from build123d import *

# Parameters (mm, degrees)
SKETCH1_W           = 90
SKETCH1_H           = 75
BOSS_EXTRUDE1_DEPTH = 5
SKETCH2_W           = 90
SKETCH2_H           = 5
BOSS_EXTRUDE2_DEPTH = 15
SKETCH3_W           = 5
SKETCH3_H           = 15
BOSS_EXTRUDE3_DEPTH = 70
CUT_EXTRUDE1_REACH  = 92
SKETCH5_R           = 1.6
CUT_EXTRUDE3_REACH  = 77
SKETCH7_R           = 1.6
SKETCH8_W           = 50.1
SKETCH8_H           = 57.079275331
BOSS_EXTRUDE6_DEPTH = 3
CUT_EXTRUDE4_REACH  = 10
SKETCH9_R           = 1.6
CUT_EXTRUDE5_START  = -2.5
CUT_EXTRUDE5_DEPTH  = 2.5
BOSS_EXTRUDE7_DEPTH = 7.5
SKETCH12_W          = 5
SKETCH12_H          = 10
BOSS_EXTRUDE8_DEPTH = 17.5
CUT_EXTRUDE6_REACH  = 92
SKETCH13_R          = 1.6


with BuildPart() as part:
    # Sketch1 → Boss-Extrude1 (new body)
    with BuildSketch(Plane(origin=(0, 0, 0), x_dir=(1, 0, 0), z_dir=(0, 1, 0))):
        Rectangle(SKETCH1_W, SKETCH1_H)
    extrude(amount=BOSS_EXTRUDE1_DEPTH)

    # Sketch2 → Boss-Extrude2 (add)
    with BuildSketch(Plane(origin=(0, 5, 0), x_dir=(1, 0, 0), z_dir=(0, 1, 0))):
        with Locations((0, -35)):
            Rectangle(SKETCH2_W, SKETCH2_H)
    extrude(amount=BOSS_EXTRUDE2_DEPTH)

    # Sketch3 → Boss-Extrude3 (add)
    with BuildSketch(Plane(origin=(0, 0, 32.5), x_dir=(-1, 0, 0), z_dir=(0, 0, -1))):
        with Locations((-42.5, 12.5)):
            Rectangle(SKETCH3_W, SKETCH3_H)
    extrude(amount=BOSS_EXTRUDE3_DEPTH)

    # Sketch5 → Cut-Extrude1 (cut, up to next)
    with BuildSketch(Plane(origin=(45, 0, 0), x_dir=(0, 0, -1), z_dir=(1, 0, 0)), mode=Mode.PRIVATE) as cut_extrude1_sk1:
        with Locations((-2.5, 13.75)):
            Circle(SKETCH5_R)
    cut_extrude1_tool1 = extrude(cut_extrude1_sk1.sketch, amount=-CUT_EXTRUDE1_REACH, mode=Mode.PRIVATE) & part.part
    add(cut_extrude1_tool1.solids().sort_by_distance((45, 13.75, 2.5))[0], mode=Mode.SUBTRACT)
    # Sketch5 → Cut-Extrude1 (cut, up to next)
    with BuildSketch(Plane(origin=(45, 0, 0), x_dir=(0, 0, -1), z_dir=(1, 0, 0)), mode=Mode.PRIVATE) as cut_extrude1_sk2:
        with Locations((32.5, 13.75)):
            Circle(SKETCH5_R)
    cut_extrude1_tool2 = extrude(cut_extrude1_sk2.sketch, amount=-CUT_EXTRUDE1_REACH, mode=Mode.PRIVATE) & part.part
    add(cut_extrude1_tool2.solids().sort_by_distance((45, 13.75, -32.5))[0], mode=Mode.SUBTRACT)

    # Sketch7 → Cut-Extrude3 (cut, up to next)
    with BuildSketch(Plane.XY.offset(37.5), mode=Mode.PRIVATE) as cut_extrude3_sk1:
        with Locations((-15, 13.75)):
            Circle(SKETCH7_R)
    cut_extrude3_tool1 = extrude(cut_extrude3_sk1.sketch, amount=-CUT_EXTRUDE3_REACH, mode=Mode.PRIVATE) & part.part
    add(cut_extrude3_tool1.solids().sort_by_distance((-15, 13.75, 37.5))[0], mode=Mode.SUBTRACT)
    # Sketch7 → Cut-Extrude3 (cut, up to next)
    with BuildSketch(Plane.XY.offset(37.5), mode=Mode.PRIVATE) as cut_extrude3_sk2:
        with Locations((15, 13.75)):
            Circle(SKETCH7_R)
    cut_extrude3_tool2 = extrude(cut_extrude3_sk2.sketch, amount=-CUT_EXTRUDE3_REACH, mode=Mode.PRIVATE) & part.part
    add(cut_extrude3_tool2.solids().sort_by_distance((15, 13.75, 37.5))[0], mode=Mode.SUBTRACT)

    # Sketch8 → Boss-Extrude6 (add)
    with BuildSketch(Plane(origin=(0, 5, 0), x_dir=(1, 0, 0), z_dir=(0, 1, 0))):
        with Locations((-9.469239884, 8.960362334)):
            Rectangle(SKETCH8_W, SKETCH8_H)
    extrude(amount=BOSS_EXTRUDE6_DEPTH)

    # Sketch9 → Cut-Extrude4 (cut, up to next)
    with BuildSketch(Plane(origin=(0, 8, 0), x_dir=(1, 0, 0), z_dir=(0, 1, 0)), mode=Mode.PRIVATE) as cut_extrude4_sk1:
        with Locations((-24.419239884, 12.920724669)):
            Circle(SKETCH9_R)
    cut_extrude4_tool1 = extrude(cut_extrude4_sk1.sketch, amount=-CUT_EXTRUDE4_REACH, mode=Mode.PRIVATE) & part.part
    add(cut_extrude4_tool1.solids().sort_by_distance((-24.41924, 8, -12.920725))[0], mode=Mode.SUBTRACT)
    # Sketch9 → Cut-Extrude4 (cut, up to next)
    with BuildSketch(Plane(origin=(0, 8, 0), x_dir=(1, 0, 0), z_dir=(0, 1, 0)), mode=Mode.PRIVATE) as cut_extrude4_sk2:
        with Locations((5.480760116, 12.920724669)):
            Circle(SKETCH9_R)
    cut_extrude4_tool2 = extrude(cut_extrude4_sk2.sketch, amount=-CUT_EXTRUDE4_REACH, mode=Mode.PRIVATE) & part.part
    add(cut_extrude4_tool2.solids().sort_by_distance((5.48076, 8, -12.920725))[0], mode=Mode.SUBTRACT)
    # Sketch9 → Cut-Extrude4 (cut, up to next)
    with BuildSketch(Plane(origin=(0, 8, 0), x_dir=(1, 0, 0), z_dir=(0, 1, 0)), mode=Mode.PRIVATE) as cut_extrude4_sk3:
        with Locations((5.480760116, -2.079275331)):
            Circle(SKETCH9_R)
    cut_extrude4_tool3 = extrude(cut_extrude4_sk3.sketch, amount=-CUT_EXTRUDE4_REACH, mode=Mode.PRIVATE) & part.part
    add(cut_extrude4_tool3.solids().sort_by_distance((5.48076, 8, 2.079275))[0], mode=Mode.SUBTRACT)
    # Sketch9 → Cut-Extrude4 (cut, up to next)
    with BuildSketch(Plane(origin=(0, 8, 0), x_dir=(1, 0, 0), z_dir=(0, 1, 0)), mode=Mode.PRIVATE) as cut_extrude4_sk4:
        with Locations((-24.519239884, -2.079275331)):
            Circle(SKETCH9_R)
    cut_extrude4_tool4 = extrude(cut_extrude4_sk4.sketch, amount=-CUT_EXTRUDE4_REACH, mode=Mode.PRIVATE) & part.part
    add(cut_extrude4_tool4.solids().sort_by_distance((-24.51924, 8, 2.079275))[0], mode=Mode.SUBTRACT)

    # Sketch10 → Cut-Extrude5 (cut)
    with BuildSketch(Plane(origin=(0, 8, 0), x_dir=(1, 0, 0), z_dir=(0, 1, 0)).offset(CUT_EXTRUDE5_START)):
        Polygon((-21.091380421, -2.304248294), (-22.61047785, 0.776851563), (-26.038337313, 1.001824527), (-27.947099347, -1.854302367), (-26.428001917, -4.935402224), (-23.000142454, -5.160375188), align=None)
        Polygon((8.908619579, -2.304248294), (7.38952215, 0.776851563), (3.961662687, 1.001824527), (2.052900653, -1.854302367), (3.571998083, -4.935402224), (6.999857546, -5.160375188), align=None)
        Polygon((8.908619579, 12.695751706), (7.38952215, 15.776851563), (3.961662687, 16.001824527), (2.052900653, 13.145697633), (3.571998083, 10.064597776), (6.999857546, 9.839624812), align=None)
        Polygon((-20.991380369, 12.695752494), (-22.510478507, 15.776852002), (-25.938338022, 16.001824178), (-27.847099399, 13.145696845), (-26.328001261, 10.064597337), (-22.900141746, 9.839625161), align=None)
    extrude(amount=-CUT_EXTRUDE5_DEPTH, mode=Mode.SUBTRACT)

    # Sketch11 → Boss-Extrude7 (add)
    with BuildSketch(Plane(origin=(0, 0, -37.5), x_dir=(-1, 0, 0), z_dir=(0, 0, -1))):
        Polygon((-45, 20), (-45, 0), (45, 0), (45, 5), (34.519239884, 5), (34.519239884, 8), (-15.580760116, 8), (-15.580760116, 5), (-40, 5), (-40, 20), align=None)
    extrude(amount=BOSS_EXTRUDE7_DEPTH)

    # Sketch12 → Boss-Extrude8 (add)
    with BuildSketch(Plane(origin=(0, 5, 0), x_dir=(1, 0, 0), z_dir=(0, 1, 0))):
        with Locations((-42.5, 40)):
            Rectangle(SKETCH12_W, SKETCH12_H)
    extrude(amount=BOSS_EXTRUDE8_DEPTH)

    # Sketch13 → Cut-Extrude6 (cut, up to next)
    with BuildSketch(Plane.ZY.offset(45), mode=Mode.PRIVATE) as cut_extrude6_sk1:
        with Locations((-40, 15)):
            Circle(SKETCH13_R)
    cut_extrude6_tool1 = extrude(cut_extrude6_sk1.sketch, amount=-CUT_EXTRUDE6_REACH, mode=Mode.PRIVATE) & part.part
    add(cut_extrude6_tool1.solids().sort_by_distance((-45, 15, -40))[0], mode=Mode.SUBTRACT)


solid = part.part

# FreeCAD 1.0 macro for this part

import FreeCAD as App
import Part
import Sketcher

V = App.Vector


def add_polygon(sketch, points):
    """Adds a closed chain of lines whose ends are joined by coincident constraints."""
    first, n = sketch.GeometryCount, len(points)
    for a, b in zip(points, points[1:] + points[:1]):
        sketch.addGeometry(Part.LineSegment(App.Vector(*a, 0), App.Vector(*b, 0)), False)
    for i in range(n):
        sketch.addConstraint(Sketcher.Constraint("Coincident", first + i, 2, first + (i + 1) % n, 1))

doc = App.newDocument("Part")
body = doc.addObject("PartDesign::Body", "Body")

sketch1 = doc.addObject("Sketcher::SketchObject", "Sketch")
body.addObject(sketch1)
sketch1.AttachmentSupport = (doc.XZ_Plane, [""])
sketch1.MapMode = "FlatFace"
add_polygon(sketch1, [(-45, -38), (-45, 38), (45, 38), (45, -38)])
sketch1.addConstraint(Sketcher.Constraint("Vertical", 0))
sketch1.addConstraint(Sketcher.Constraint("Horizontal", 1))
sketch1.addConstraint(Sketcher.Constraint("Vertical", 2))
sketch1.addConstraint(Sketcher.Constraint("Horizontal", 3))
sketch1.addConstraint(Sketcher.Constraint("Symmetric", 0, 2, 2, 2, -1, 1))
sketch1.addConstraint(Sketcher.Constraint("DistanceX", 1, 1, 1, 2, 90.0))
sketch1.addConstraint(Sketcher.Constraint("DistanceY", 0, 1, 0, 2, 75.0))
pad1 = doc.addObject("PartDesign::Pad", "Pad")
body.addObject(pad1)
pad1.Profile = sketch1
pad1.Length = 5
pad1.Reversed = True

sketch2 = doc.addObject("Sketcher::SketchObject", "Sketch001")
body.addObject(sketch2)
sketch2.AttachmentSupport = (doc.XZ_Plane, [""])
sketch2.MapMode = "FlatFace"
sketch2.AttachmentOffset = App.Placement(V(0, 0, -5), App.Rotation())
add_polygon(sketch2, [(-45, 32), (-45, 38), (45, 38), (45, 32)])
sketch2.addConstraint(Sketcher.Constraint("Vertical", 0))
sketch2.addConstraint(Sketcher.Constraint("Horizontal", 1))
sketch2.addConstraint(Sketcher.Constraint("Vertical", 2))
sketch2.addConstraint(Sketcher.Constraint("Horizontal", 3))
sketch2.addConstraint(Sketcher.Constraint("DistanceX", 1, 1, 1, 2, 90.0))
sketch2.addConstraint(Sketcher.Constraint("DistanceY", 0, 1, 0, 2, 5.0))
sketch2.addConstraint(Sketcher.Constraint("DistanceX", 0, 2, -1, 1, 45.0))
sketch2.addConstraint(Sketcher.Constraint("DistanceY", -1, 1, 0, 2, 37.5))
pad2 = doc.addObject("PartDesign::Pad", "Pad001")
body.addObject(pad2)
pad2.Profile = sketch2
pad2.Length = 15
pad2.Reversed = True

sketch3 = doc.addObject("Sketcher::SketchObject", "Sketch002")
body.addObject(sketch3)
sketch3.AttachmentSupport = (doc.XY_Plane, [""])
sketch3.MapMode = "FlatFace"
sketch3.AttachmentOffset = App.Placement(V(0, 0, 32.5), App.Rotation())
add_polygon(sketch3, [(45, 20), (45, 5), (40, 5), (40, 20)])
sketch3.addConstraint(Sketcher.Constraint("Vertical", 0))
sketch3.addConstraint(Sketcher.Constraint("Horizontal", 1))
sketch3.addConstraint(Sketcher.Constraint("Vertical", 2))
sketch3.addConstraint(Sketcher.Constraint("Horizontal", 3))
sketch3.addConstraint(Sketcher.Constraint("DistanceX", 1, 2, 1, 1, 5.0))
sketch3.addConstraint(Sketcher.Constraint("DistanceY", 0, 2, 0, 1, 15.0))
sketch3.addConstraint(Sketcher.Constraint("DistanceX", -1, 1, 0, 2, 45.0))
sketch3.addConstraint(Sketcher.Constraint("DistanceY", -1, 1, 0, 2, 5.0))
pad3 = doc.addObject("PartDesign::Pad", "Pad002")
body.addObject(pad3)
pad3.Profile = sketch3
pad3.Length = 70
pad3.Reversed = True

sketch4 = doc.addObject("Sketcher::SketchObject", "Sketch003")
body.addObject(sketch4)
sketch4.AttachmentSupport = (doc.YZ_Plane, [""])
sketch4.MapMode = "FlatFace"
sketch4.AttachmentOffset = App.Placement(V(0, 0, 45), App.Rotation())
sketch4.addGeometry(Part.Circle(V(13.8, 2.5, 0), V(0, 0, 1), 1.6), False)
sketch4.addConstraint(Sketcher.Constraint("Diameter", 0, 3.2))
sketch4.addConstraint(Sketcher.Constraint("DistanceY", -1, 1, 0, 3, 2.5))
sketch4.addConstraint(Sketcher.Constraint("DistanceX", -1, 1, 0, 3, 13.75))
pocket1 = doc.addObject("PartDesign::Pocket", "Pocket")
body.addObject(pocket1)
pocket1.Profile = sketch4
pocket1.Type = "UpToFirst"

sketch5 = doc.addObject("Sketcher::SketchObject", "Sketch004")
body.addObject(sketch5)
sketch5.AttachmentSupport = (doc.YZ_Plane, [""])
sketch5.MapMode = "FlatFace"
sketch5.AttachmentOffset = App.Placement(V(0, 0, 45), App.Rotation())
sketch5.addGeometry(Part.Circle(V(13.8, -32.5, 0), V(0, 0, 1), 1.6), False)
sketch5.addConstraint(Sketcher.Constraint("Diameter", 0, 3.2))
sketch5.addConstraint(Sketcher.Constraint("DistanceY", 0, 3, -1, 1, 32.5))
sketch5.addConstraint(Sketcher.Constraint("DistanceX", -1, 1, 0, 3, 13.75))
pocket2 = doc.addObject("PartDesign::Pocket", "Pocket001")
body.addObject(pocket2)
pocket2.Profile = sketch5
pocket2.Type = "UpToFirst"

sketch6 = doc.addObject("Sketcher::SketchObject", "Sketch005")
body.addObject(sketch6)
sketch6.AttachmentSupport = (doc.XY_Plane, [""])
sketch6.MapMode = "FlatFace"
sketch6.AttachmentOffset = App.Placement(V(0, 0, 37.5), App.Rotation())
sketch6.addGeometry(Part.Circle(V(-15, 13.8, 0), V(0, 0, 1), 1.6), False)
sketch6.addConstraint(Sketcher.Constraint("Diameter", 0, 3.2))
sketch6.addConstraint(Sketcher.Constraint("DistanceX", 0, 3, -1, 1, 15.0))
sketch6.addConstraint(Sketcher.Constraint("DistanceY", -1, 1, 0, 3, 13.75))
pocket3 = doc.addObject("PartDesign::Pocket", "Pocket002")
body.addObject(pocket3)
pocket3.Profile = sketch6
pocket3.Type = "UpToFirst"

sketch7 = doc.addObject("Sketcher::SketchObject", "Sketch006")
body.addObject(sketch7)
sketch7.AttachmentSupport = (doc.XY_Plane, [""])
sketch7.MapMode = "FlatFace"
sketch7.AttachmentOffset = App.Placement(V(0, 0, 37.5), App.Rotation())
sketch7.addGeometry(Part.Circle(V(15, 13.8, 0), V(0, 0, 1), 1.6), False)
sketch7.addConstraint(Sketcher.Constraint("Diameter", 0, 3.2))
sketch7.addConstraint(Sketcher.Constraint("DistanceX", -1, 1, 0, 3, 15.0))
sketch7.addConstraint(Sketcher.Constraint("DistanceY", -1, 1, 0, 3, 13.75))
pocket4 = doc.addObject("PartDesign::Pocket", "Pocket003")
body.addObject(pocket4)
pocket4.Profile = sketch7
pocket4.Type = "UpToFirst"

sketch8 = doc.addObject("Sketcher::SketchObject", "Sketch007")
body.addObject(sketch8)
sketch8.AttachmentSupport = (doc.XZ_Plane, [""])
sketch8.MapMode = "FlatFace"
sketch8.AttachmentOffset = App.Placement(V(0, 0, -5), App.Rotation())
add_polygon(sketch8, [(-35, -37), (-35, 20), (16, 20), (16, -37)])
sketch8.addConstraint(Sketcher.Constraint("Vertical", 0))
sketch8.addConstraint(Sketcher.Constraint("Horizontal", 1))
sketch8.addConstraint(Sketcher.Constraint("Vertical", 2))
sketch8.addConstraint(Sketcher.Constraint("Horizontal", 3))
sketch8.addConstraint(Sketcher.Constraint("DistanceX", 1, 1, 1, 2, 50.1))
sketch8.addConstraint(Sketcher.Constraint("DistanceY", 2, 2, -1, 1, 37.5))
sketch8.addConstraint(Sketcher.Constraint("DistanceY", 0, 1, 0, 2, 57.079275))
sketch8.addConstraint(Sketcher.Constraint("DistanceX", 0, 2, -1, 1, 34.51924))
pad4 = doc.addObject("PartDesign::Pad", "Pad003")
body.addObject(pad4)
pad4.Profile = sketch8
pad4.Length = 3
pad4.Reversed = True

sketch9 = doc.addObject("Sketcher::SketchObject", "Sketch008")
body.addObject(sketch9)
sketch9.AttachmentSupport = (doc.XZ_Plane, [""])
sketch9.MapMode = "FlatFace"
sketch9.AttachmentOffset = App.Placement(V(0, 0, -8), App.Rotation())
sketch9.addGeometry(Part.Circle(V(-24.4, -12.9, 0), V(0, 0, 1), 1.6), False)
sketch9.addConstraint(Sketcher.Constraint("Diameter", 0, 3.2))
sketch9.addConstraint(Sketcher.Constraint("DistanceX", 0, 3, -1, 1, 24.41924))
sketch9.addConstraint(Sketcher.Constraint("DistanceY", 0, 3, -1, 1, 12.920725))
pocket5 = doc.addObject("PartDesign::Pocket", "Pocket004")
body.addObject(pocket5)
pocket5.Profile = sketch9
pocket5.Type = "UpToFirst"
pocket5.Reversed = True

sketch10 = doc.addObject("Sketcher::SketchObject", "Sketch009")
body.addObject(sketch10)
sketch10.AttachmentSupport = (doc.XZ_Plane, [""])
sketch10.MapMode = "FlatFace"
sketch10.AttachmentOffset = App.Placement(V(0, 0, -8), App.Rotation())
sketch10.addGeometry(Part.Circle(V(5.5, -12.9, 0), V(0, 0, 1), 1.6), False)
sketch10.addConstraint(Sketcher.Constraint("Diameter", 0, 3.2))
sketch10.addConstraint(Sketcher.Constraint("DistanceX", -1, 1, 0, 3, 5.48076))
sketch10.addConstraint(Sketcher.Constraint("DistanceY", 0, 3, -1, 1, 12.920725))
pocket6 = doc.addObject("PartDesign::Pocket", "Pocket005")
body.addObject(pocket6)
pocket6.Profile = sketch10
pocket6.Type = "UpToFirst"
pocket6.Reversed = True

sketch11 = doc.addObject("Sketcher::SketchObject", "Sketch010")
body.addObject(sketch11)
sketch11.AttachmentSupport = (doc.XZ_Plane, [""])
sketch11.MapMode = "FlatFace"
sketch11.AttachmentOffset = App.Placement(V(0, 0, -8), App.Rotation())
sketch11.addGeometry(Part.Circle(V(5.5, 2.1, 0), V(0, 0, 1), 1.6), False)
sketch11.addConstraint(Sketcher.Constraint("Diameter", 0, 3.2))
sketch11.addConstraint(Sketcher.Constraint("DistanceX", -1, 1, 0, 3, 5.48076))
sketch11.addConstraint(Sketcher.Constraint("DistanceY", -1, 1, 0, 3, 2.079275))
pocket7 = doc.addObject("PartDesign::Pocket", "Pocket006")
body.addObject(pocket7)
pocket7.Profile = sketch11
pocket7.Type = "UpToFirst"
pocket7.Reversed = True

sketch12 = doc.addObject("Sketcher::SketchObject", "Sketch011")
body.addObject(sketch12)
sketch12.AttachmentSupport = (doc.XZ_Plane, [""])
sketch12.MapMode = "FlatFace"
sketch12.AttachmentOffset = App.Placement(V(0, 0, -8), App.Rotation())
sketch12.addGeometry(Part.Circle(V(-24.5, 2.1, 0), V(0, 0, 1), 1.6), False)
sketch12.addConstraint(Sketcher.Constraint("Diameter", 0, 3.2))
sketch12.addConstraint(Sketcher.Constraint("DistanceX", 0, 3, -1, 1, 24.51924))
sketch12.addConstraint(Sketcher.Constraint("DistanceY", -1, 1, 0, 3, 2.079275))
pocket8 = doc.addObject("PartDesign::Pocket", "Pocket007")
body.addObject(pocket8)
pocket8.Profile = sketch12
pocket8.Type = "UpToFirst"
pocket8.Reversed = True

sketch13 = doc.addObject("Sketcher::SketchObject", "Sketch012")
body.addObject(sketch13)
sketch13.AttachmentSupport = (doc.XZ_Plane, [""])
sketch13.MapMode = "FlatFace"
sketch13.AttachmentOffset = App.Placement(V(0, 0, -5.5), App.Rotation())
add_polygon(sketch13, [(-21.1, 2.3), (-22.6, -0.8), (-26, -1), (-27.9, 1.9), (-26.4, 4.9), (-23, 5.2)])
add_polygon(sketch13, [(8.9, 2.3), (7.4, -0.8), (4, -1), (2.1, 1.9), (3.6, 4.9), (7, 5.2)])
add_polygon(sketch13, [(8.9, -12.7), (7.4, -15.8), (4, -16), (2.1, -13.1), (3.6, -10.1), (7, -9.8)])
add_polygon(sketch13, [(-21, -12.7), (-22.5, -15.8), (-25.9, -16), (-27.8, -13.1), (-26.3, -10.1), (-22.9, -9.8)])
sketch13.addConstraint(Sketcher.Constraint("Parallel", 0, 3))
sketch13.addConstraint(Sketcher.Constraint("Parallel", 1, 4))
sketch13.addConstraint(Sketcher.Constraint("Parallel", 2, 5))
sketch13.addConstraint(Sketcher.Constraint("Parallel", 3, 6))
sketch13.addConstraint(Sketcher.Constraint("Parallel", 4, 7))
sketch13.addConstraint(Sketcher.Constraint("Parallel", 5, 8))
sketch13.addConstraint(Sketcher.Constraint("Parallel", 6, 9))
sketch13.addConstraint(Sketcher.Constraint("Parallel", 7, 10))
sketch13.addConstraint(Sketcher.Constraint("Parallel", 8, 11))
sketch13.addConstraint(Sketcher.Constraint("Parallel", 9, 12))
sketch13.addConstraint(Sketcher.Constraint("Parallel", 10, 13))
sketch13.addConstraint(Sketcher.Constraint("Parallel", 11, 14))
sketch13.addConstraint(Sketcher.Constraint("Parallel", 12, 15))
sketch13.addConstraint(Sketcher.Constraint("Parallel", 13, 16))
sketch13.addConstraint(Sketcher.Constraint("Parallel", 14, 17))
sketch13.addConstraint(Sketcher.Constraint("Parallel", 15, 18))
sketch13.addConstraint(Sketcher.Constraint("Parallel", 16, 19))
sketch13.addConstraint(Sketcher.Constraint("Parallel", 17, 20))
sketch13.addConstraint(Sketcher.Constraint("Parallel", 18, 21))
sketch13.addConstraint(Sketcher.Constraint("Parallel", 19, 22))
sketch13.addConstraint(Sketcher.Constraint("Parallel", 20, 23))
sketch13.addConstraint(Sketcher.Constraint("Horizontal", 0, 2, 6, 2))
sketch13.addConstraint(Sketcher.Constraint("Horizontal", 1, 2, 7, 2))
sketch13.addConstraint(Sketcher.Constraint("Horizontal", 2, 2, 8, 2))
sketch13.addConstraint(Sketcher.Constraint("Horizontal", 3, 2, 9, 2))
sketch13.addConstraint(Sketcher.Constraint("Horizontal", 4, 2, 10, 2))
sketch13.addConstraint(Sketcher.Constraint("Horizontal", 12, 2, 18, 2))
sketch13.addConstraint(Sketcher.Constraint("Horizontal", 13, 2, 19, 2))
sketch13.addConstraint(Sketcher.Constraint("Horizontal", 14, 2, 20, 2))
sketch13.addConstraint(Sketcher.Constraint("Horizontal", 15, 2, 21, 2))
sketch13.addConstraint(Sketcher.Constraint("Horizontal", 16, 2, 22, 2))
sketch13.addConstraint(Sketcher.Constraint("Vertical", 6, 2, 12, 2))
sketch13.addConstraint(Sketcher.Constraint("Vertical", 7, 2, 13, 2))
sketch13.addConstraint(Sketcher.Constraint("Vertical", 8, 2, 14, 2))
sketch13.addConstraint(Sketcher.Constraint("Vertical", 9, 2, 15, 2))
sketch13.addConstraint(Sketcher.Constraint("Vertical", 10, 2, 16, 2))
sketch13.addConstraint(Sketcher.Constraint("Equal", 0, 1))
sketch13.addConstraint(Sketcher.Constraint("Equal", 1, 2))
sketch13.addConstraint(Sketcher.Constraint("Equal", 2, 3))
sketch13.addConstraint(Sketcher.Constraint("DistanceX", 0, 2, 6, 2, 30.0))
sketch13.addConstraint(Sketcher.Constraint("DistanceY", 12, 2, 6, 2, 15.0))
sketch13.addConstraint(Sketcher.Constraint("DistanceX", 0, 2, 18, 2, 0.099999))
sketch13.addConstraint(Sketcher.Constraint("DistanceX", 3, 2, -1, 1, 26.428002))
sketch13.addConstraint(Sketcher.Constraint("DistanceX", 2, 2, -1, 1, 27.947099))
sketch13.addConstraint(Sketcher.Constraint("DistanceY", 2, 2, 3, 2, 3.0811))
sketch13.addConstraint(Sketcher.Constraint("DistanceY", 1, 2, 4, 2, 6.1622))
sketch13.addConstraint(Sketcher.Constraint("DistanceY", 0, 2, -1, 1, 0.776852))
sketch13.addConstraint(Sketcher.Constraint("DistanceX", 5, 2, -1, 1, 21.09138))
pocket9 = doc.addObject("PartDesign::Pocket", "Pocket008")
body.addObject(pocket9)
pocket9.Profile = sketch13
pocket9.Length = 2.5
pocket9.Reversed = True

sketch14 = doc.addObject("Sketcher::SketchObject", "Sketch013")
body.addObject(sketch14)
sketch14.AttachmentSupport = (doc.XY_Plane, [""])
sketch14.MapMode = "FlatFace"
sketch14.AttachmentOffset = App.Placement(V(0, 0, -37.5), App.Rotation())
add_polygon(sketch14, [(45, 20), (45, 0), (-45, 0), (-45, 5), (-34.5, 5), (-34.5, 8), (15.6, 8), (15.6, 5), (40, 5), (40, 20)])
sketch14.addConstraint(Sketcher.Constraint("Vertical", 0))
sketch14.addConstraint(Sketcher.Constraint("Horizontal", 1))
sketch14.addConstraint(Sketcher.Constraint("Vertical", 2))
sketch14.addConstraint(Sketcher.Constraint("Horizontal", 3))
sketch14.addConstraint(Sketcher.Constraint("Vertical", 4))
sketch14.addConstraint(Sketcher.Constraint("Horizontal", 5))
sketch14.addConstraint(Sketcher.Constraint("Vertical", 6))
sketch14.addConstraint(Sketcher.Constraint("Horizontal", 7))
sketch14.addConstraint(Sketcher.Constraint("Vertical", 8))
sketch14.addConstraint(Sketcher.Constraint("Horizontal", 9))
sketch14.addConstraint(Sketcher.Constraint("Symmetric", 0, 2, 1, 2, -1, 1))
sketch14.addConstraint(Sketcher.Constraint("Horizontal", 3, 2, 6, 2))
sketch14.addConstraint(Sketcher.Constraint("Equal", 9, 2))
sketch14.addConstraint(Sketcher.Constraint("DistanceX", 1, 2, 1, 1, 90.0))
sketch14.addConstraint(Sketcher.Constraint("DistanceX", 9, 1, 9, 2, 5.0))
sketch14.addConstraint(Sketcher.Constraint("DistanceY", 0, 2, 0, 1, 20.0))
sketch14.addConstraint(Sketcher.Constraint("DistanceY", 4, 1, 4, 2, 3.0))
sketch14.addConstraint(Sketcher.Constraint("DistanceX", 5, 1, 5, 2, 50.1))
sketch14.addConstraint(Sketcher.Constraint("DistanceX", 3, 1, 3, 2, 10.48076))
pad5 = doc.addObject("PartDesign::Pad", "Pad004")
body.addObject(pad5)
pad5.Profile = sketch14
pad5.Length = 7.5
pad5.Reversed = True

sketch15 = doc.addObject("Sketcher::SketchObject", "Sketch014")
body.addObject(sketch15)
sketch15.AttachmentSupport = (doc.XZ_Plane, [""])
sketch15.MapMode = "FlatFace"
sketch15.AttachmentOffset = App.Placement(V(0, 0, -5), App.Rotation())
add_polygon(sketch15, [(-45, -45), (-45, -35), (-40, -35), (-40, -45)])
sketch15.addConstraint(Sketcher.Constraint("Vertical", 0))
sketch15.addConstraint(Sketcher.Constraint("Horizontal", 1))
sketch15.addConstraint(Sketcher.Constraint("Vertical", 2))
sketch15.addConstraint(Sketcher.Constraint("Horizontal", 3))
sketch15.addConstraint(Sketcher.Constraint("DistanceX", 1, 1, 1, 2, 5.0))
sketch15.addConstraint(Sketcher.Constraint("DistanceY", 0, 1, 0, 2, 10.0))
sketch15.addConstraint(Sketcher.Constraint("DistanceX", 0, 2, -1, 1, 45.0))
sketch15.addConstraint(Sketcher.Constraint("DistanceY", 0, 2, -1, 1, 35.0))
pad6 = doc.addObject("PartDesign::Pad", "Pad005")
body.addObject(pad6)
pad6.Profile = sketch15
pad6.Length = 17.5
pad6.Reversed = True

sketch16 = doc.addObject("Sketcher::SketchObject", "Sketch015")
body.addObject(sketch16)
sketch16.AttachmentSupport = (doc.YZ_Plane, [""])
sketch16.MapMode = "FlatFace"
sketch16.AttachmentOffset = App.Placement(V(0, 0, -45), App.Rotation())
sketch16.addGeometry(Part.Circle(V(15, -40, 0), V(0, 0, 1), 1.6), False)
sketch16.addConstraint(Sketcher.Constraint("Diameter", 0, 3.2))
sketch16.addConstraint(Sketcher.Constraint("DistanceX", -1, 1, 0, 3, 15.0))
sketch16.addConstraint(Sketcher.Constraint("DistanceY", 0, 3, -1, 1, 40.0))
pocket10 = doc.addObject("PartDesign::Pocket", "Pocket009")
body.addObject(pocket10)
pocket10.Profile = sketch16
pocket10.Type = "UpToFirst"
pocket10.Reversed = True

doc.recompute()
